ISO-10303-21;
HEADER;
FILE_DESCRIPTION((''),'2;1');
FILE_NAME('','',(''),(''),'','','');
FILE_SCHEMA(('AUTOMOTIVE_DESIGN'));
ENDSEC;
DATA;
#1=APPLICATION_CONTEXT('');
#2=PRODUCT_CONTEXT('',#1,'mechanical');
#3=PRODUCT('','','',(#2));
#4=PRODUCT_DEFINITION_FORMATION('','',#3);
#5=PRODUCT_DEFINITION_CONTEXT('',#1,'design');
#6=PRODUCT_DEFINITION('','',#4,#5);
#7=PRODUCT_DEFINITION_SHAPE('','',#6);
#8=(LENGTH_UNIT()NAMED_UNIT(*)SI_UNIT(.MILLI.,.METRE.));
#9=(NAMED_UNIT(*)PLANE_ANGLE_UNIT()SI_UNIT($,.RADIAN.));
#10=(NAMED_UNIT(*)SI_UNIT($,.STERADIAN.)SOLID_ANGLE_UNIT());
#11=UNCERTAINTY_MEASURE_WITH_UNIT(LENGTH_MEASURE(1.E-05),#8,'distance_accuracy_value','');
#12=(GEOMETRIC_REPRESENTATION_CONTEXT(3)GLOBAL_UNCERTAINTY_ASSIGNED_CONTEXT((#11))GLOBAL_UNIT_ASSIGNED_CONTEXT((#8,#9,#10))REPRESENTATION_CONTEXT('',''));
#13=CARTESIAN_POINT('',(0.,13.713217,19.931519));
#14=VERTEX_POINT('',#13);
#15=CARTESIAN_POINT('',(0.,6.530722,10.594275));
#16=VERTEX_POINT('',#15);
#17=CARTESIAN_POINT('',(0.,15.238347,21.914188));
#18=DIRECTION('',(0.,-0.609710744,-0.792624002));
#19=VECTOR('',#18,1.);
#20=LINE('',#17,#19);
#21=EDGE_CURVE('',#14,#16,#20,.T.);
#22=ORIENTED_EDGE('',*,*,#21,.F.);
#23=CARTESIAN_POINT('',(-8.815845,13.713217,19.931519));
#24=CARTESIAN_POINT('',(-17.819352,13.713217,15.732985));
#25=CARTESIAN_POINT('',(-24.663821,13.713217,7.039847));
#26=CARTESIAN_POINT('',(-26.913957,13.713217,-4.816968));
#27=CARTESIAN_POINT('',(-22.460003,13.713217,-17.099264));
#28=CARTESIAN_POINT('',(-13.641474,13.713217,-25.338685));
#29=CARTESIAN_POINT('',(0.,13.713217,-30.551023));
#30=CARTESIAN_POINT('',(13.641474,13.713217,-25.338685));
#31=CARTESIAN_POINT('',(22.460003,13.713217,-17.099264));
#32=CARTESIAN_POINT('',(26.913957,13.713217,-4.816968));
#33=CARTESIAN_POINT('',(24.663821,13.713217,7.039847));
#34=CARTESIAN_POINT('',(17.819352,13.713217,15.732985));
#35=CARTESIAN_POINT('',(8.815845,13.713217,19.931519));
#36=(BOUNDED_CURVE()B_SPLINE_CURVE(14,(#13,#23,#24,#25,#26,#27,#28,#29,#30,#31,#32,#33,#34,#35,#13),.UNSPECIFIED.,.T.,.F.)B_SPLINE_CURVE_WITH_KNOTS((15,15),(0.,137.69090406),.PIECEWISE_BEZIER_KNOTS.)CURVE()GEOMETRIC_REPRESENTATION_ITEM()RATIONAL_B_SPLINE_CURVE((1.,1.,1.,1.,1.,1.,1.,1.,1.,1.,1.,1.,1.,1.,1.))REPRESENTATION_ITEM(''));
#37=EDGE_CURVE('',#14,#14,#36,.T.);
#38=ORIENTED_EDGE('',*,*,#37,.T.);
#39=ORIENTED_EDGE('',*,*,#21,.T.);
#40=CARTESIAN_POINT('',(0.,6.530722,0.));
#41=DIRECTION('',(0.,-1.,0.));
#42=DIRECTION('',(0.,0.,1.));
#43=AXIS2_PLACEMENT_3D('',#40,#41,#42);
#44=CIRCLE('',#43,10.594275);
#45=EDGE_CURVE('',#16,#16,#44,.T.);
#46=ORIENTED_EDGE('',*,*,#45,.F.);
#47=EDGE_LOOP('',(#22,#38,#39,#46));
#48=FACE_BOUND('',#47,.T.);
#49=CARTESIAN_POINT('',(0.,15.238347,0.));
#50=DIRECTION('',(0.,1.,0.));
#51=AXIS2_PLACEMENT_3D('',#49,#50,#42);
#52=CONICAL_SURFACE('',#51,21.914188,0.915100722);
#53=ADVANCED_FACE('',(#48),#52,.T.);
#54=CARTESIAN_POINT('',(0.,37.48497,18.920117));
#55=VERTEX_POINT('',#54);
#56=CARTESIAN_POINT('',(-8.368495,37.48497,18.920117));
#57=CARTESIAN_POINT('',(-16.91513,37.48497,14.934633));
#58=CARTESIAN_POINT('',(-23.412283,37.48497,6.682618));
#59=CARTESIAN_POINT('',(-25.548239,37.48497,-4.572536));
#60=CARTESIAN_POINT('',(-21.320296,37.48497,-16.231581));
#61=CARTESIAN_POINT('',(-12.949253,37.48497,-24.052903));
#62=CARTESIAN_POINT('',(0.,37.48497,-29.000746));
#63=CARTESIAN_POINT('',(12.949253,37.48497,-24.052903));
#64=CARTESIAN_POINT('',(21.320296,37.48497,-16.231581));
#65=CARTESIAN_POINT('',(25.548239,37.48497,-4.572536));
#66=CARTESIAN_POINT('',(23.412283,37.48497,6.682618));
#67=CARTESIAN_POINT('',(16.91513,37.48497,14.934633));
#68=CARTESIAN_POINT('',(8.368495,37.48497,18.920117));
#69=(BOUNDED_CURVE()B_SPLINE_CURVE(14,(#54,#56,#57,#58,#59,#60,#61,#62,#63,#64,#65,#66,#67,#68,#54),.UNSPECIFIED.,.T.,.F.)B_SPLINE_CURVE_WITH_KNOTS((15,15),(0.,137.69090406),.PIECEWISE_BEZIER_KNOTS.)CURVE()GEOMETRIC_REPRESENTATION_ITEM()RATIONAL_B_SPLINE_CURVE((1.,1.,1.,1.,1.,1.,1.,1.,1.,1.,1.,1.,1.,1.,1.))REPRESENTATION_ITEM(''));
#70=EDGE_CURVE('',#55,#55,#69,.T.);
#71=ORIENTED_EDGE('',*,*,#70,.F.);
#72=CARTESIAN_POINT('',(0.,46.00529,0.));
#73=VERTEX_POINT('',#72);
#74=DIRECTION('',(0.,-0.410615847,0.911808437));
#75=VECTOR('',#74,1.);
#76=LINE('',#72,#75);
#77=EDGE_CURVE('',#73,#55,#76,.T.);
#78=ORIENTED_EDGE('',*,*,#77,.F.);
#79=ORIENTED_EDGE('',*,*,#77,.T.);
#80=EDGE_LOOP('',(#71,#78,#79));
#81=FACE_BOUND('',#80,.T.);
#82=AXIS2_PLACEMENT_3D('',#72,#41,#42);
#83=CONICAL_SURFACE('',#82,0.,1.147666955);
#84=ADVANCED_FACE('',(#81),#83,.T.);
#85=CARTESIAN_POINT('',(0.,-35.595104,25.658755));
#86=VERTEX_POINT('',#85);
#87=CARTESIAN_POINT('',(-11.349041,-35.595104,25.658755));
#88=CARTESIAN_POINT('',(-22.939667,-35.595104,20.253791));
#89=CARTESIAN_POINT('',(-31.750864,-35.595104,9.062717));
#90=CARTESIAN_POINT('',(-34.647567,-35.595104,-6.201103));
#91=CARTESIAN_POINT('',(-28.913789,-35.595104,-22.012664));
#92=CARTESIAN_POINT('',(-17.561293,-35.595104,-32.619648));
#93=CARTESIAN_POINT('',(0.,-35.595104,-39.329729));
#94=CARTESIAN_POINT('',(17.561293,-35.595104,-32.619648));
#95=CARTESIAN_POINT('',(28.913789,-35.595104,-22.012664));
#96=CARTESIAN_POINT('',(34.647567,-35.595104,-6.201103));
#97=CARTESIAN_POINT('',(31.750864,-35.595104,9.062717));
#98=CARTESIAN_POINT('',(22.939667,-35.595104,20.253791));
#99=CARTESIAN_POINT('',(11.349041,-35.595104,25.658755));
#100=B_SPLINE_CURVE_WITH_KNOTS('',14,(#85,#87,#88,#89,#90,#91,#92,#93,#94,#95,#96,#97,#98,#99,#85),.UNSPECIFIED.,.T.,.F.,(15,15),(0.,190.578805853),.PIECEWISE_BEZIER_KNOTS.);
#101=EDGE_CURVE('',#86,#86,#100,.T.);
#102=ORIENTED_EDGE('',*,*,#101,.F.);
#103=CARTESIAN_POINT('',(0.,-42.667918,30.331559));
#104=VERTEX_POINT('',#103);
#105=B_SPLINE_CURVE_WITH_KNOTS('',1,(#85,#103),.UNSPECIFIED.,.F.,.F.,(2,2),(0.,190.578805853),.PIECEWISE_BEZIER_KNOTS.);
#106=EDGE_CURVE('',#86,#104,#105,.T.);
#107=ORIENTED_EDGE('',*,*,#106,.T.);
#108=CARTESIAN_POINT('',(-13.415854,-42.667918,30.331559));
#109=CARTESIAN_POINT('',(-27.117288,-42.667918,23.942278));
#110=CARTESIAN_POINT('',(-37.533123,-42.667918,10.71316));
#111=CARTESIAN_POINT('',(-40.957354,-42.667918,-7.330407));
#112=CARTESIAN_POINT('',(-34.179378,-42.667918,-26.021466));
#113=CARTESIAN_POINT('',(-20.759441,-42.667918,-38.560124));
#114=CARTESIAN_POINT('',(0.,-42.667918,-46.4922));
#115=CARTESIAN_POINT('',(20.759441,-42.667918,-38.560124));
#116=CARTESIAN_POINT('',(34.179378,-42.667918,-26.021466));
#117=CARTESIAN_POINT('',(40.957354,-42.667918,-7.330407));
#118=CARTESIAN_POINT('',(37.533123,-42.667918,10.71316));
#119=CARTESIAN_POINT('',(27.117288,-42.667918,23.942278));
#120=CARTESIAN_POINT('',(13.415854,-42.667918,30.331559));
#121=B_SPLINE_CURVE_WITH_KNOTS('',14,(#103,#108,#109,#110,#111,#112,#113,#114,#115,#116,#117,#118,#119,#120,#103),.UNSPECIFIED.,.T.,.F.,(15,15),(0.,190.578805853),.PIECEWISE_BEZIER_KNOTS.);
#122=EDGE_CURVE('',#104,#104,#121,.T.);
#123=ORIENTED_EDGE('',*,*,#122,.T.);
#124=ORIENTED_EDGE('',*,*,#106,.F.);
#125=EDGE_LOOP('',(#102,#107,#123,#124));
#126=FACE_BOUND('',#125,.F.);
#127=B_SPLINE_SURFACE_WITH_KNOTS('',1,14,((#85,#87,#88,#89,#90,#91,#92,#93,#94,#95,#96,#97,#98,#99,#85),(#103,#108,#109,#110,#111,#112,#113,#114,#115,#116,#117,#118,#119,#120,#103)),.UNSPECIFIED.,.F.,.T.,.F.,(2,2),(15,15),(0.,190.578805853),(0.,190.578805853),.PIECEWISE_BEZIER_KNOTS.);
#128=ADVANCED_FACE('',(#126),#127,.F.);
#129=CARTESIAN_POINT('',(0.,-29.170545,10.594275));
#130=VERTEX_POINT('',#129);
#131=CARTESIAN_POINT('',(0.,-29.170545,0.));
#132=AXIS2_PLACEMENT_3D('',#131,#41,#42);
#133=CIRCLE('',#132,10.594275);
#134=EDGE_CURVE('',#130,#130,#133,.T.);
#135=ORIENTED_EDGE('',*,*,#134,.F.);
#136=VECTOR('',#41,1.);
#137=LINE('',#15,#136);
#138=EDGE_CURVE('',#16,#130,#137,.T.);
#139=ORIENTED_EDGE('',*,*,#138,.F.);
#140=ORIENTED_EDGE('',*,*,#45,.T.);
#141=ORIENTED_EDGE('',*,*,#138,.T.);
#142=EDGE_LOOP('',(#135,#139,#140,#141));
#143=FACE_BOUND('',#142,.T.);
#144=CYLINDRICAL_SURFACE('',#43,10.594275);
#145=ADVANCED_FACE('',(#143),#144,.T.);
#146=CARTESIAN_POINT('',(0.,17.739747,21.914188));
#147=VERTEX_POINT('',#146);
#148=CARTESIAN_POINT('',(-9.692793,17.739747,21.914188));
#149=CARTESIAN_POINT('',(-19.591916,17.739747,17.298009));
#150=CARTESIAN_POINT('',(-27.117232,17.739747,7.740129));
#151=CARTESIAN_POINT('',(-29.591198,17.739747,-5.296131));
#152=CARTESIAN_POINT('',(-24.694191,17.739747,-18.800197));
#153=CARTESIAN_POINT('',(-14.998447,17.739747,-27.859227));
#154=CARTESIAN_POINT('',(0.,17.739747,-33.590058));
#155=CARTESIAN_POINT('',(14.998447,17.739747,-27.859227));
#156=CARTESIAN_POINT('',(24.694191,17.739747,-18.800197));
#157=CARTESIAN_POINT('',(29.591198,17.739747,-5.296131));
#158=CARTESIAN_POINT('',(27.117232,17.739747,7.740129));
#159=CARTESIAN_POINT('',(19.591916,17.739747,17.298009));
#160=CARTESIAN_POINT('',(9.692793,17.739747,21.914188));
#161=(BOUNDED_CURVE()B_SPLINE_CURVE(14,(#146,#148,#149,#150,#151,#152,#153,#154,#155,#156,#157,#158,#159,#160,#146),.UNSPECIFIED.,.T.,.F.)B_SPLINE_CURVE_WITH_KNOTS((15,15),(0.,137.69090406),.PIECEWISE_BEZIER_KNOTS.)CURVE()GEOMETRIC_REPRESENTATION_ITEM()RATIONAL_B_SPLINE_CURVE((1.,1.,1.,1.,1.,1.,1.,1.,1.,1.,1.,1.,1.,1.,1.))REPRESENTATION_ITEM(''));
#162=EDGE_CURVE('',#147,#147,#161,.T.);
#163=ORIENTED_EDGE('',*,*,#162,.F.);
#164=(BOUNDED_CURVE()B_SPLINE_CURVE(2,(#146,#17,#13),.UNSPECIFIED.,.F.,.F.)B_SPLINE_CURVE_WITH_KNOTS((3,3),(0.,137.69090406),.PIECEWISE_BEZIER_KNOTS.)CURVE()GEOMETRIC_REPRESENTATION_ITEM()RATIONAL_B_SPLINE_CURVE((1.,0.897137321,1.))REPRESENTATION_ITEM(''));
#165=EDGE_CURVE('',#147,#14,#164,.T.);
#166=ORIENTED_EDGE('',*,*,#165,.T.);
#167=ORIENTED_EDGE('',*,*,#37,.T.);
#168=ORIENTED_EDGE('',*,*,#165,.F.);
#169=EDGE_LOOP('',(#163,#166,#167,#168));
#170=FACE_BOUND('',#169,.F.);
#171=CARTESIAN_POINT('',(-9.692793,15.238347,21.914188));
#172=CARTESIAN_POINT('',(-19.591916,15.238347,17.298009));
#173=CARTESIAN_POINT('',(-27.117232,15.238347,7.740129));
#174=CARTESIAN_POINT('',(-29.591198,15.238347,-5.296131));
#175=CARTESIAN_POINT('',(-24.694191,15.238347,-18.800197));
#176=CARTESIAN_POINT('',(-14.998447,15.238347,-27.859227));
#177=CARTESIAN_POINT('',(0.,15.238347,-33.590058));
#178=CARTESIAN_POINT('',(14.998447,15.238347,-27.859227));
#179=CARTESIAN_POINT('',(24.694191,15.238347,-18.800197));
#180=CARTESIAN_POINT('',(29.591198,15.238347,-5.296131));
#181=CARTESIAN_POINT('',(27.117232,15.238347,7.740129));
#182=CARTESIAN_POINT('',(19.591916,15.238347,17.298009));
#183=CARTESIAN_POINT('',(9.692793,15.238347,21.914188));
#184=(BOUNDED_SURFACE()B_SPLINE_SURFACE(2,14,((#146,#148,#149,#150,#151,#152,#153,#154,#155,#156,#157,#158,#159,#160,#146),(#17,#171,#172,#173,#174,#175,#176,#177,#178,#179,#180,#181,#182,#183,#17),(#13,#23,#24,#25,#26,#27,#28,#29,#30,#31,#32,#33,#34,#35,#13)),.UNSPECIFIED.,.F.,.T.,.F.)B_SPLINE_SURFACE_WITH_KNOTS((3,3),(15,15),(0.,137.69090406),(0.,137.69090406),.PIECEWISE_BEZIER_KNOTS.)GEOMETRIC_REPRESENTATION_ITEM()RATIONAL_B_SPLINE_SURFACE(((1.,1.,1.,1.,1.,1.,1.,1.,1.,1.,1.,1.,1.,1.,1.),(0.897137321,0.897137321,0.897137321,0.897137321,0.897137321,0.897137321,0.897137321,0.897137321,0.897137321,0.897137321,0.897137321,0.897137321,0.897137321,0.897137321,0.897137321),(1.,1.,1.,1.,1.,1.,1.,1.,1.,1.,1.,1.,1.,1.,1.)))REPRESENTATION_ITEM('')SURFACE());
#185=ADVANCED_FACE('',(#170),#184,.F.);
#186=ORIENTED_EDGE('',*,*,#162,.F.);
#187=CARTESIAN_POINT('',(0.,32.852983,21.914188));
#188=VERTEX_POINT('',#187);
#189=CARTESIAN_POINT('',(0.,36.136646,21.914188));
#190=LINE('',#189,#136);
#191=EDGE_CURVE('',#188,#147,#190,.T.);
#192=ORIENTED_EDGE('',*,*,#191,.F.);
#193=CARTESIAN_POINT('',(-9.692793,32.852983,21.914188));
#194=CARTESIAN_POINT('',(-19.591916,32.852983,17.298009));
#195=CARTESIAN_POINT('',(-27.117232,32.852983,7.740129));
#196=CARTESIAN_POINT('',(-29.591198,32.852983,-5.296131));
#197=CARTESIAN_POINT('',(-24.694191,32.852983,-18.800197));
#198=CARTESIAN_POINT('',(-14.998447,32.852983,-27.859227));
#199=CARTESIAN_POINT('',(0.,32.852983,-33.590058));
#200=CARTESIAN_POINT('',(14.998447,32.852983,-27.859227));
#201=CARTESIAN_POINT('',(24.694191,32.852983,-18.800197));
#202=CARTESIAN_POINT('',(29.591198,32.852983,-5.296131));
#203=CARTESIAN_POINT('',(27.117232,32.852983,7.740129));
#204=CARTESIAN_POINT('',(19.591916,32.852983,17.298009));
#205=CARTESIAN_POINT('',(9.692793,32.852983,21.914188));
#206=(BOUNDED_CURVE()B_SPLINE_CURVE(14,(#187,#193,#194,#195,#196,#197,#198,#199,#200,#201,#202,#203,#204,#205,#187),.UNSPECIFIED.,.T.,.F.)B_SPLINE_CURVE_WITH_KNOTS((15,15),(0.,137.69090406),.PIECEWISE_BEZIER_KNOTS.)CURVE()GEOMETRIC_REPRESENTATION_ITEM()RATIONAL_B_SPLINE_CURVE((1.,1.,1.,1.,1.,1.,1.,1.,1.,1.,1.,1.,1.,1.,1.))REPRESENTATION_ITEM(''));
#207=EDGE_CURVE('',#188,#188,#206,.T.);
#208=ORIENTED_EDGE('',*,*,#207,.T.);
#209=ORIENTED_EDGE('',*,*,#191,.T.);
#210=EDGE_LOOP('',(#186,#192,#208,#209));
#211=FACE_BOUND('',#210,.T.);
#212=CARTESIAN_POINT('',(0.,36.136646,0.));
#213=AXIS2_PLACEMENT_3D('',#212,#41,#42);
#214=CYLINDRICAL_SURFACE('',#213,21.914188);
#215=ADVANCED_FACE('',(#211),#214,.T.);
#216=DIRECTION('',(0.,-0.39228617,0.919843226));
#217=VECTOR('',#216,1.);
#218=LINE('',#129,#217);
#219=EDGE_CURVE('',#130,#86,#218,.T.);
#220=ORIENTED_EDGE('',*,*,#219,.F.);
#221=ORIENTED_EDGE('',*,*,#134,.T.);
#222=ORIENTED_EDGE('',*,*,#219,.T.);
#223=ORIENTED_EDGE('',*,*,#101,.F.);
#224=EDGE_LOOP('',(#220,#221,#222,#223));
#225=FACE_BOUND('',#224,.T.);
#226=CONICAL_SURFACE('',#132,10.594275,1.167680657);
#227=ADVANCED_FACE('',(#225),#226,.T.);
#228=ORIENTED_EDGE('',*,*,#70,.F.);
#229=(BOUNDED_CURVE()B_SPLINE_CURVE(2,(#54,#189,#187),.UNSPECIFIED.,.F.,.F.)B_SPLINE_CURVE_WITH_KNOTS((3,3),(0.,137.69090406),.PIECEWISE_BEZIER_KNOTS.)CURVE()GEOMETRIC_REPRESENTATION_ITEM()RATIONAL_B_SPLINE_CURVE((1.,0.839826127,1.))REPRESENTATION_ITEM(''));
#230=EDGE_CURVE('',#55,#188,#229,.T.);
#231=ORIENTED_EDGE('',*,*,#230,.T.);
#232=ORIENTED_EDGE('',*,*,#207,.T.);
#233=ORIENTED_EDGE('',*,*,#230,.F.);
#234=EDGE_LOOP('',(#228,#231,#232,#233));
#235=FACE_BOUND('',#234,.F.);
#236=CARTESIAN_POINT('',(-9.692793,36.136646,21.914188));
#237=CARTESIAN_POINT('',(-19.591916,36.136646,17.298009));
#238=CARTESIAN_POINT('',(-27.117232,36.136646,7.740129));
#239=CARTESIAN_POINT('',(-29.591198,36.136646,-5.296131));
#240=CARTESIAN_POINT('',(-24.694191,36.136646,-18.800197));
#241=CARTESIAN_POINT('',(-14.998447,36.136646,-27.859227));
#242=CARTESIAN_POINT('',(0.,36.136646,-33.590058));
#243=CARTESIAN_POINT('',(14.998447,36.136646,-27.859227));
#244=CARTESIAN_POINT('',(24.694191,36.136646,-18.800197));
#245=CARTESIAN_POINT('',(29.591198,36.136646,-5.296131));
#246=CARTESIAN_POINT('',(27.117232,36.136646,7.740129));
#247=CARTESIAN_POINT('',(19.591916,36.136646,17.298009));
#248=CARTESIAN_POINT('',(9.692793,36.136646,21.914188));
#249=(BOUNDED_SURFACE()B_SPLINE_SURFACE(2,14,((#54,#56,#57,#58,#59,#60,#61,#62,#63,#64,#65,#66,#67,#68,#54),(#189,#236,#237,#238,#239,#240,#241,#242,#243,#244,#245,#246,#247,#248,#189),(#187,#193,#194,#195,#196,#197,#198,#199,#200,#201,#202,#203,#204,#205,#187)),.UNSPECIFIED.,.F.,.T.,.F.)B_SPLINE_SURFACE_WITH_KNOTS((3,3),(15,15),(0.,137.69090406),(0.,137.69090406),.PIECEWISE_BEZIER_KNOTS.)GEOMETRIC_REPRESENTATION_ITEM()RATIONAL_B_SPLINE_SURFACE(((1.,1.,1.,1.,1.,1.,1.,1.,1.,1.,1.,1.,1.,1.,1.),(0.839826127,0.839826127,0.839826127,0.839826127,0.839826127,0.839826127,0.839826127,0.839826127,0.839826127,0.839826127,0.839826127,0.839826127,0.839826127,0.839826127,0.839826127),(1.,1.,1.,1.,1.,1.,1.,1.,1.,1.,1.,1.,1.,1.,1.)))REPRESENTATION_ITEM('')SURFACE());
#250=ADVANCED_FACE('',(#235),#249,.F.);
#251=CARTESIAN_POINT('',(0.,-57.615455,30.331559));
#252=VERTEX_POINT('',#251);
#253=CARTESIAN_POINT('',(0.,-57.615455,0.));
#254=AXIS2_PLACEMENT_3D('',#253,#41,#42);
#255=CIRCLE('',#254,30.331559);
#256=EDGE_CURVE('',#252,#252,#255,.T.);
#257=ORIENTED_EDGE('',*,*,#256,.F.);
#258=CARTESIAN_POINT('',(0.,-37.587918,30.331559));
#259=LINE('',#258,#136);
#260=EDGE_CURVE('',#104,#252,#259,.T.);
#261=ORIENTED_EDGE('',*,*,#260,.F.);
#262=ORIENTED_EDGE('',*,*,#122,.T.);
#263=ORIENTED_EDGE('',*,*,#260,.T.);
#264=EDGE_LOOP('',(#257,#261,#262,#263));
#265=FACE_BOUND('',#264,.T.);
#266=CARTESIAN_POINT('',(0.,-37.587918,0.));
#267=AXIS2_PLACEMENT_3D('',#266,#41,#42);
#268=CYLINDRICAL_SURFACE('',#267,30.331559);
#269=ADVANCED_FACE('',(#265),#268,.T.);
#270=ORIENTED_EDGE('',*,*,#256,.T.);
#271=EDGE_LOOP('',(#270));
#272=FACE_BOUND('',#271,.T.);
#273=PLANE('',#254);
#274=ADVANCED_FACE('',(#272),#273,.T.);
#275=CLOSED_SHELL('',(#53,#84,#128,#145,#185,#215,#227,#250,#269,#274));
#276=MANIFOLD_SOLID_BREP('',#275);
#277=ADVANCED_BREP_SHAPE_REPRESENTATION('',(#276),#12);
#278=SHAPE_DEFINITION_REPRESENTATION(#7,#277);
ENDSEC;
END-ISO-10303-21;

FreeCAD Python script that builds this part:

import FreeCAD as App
import Part
import Sketcher
from FreeCAD import Vector
Q = App.Units.Quantity


def edges_at(feature, points):
    """Names of the edges that pass closest to the given points."""
    edges = feature.Shape.Edges
    near = lambda p: min(range(len(edges)), key=lambda i: edges[i].distToShape(Part.Vertex(*p))[0])
    return sorted({f"Edge{near(p) + 1}" for p in points})


def add_polygon(sketch, points):
    """Adds a closed chain of lines whose ends are joined by coincident constraints."""
    first, n = sketch.GeometryCount, len(points)
    for a, b in zip(points, points[1:] + points[:1]):
        sketch.addGeometry(Part.LineSegment(App.Vector(*a, 0), App.Vector(*b, 0)), False)
    for i in range(n):
        sketch.addConstraint(Sketcher.Constraint("Coincident", first + i, 2, first + (i + 1) % n, 1))

doc = App.newDocument("Part")
body = doc.addObject("PartDesign::Body", "Body")

# Sketch on YZ plane
sketch1 = doc.addObject("Sketcher::SketchObject", "Sketch")
body.addObject(sketch1)
sketch1.AttachmentSupport = (doc.YZ_Plane, [""])
sketch1.MapMode = "FlatFace"
add_polygon(sketch1, [(-58, 0), (46, 0), (36, 22), (15, 22), (7, 11), (-29, 11), (-38, 30), (-58, 30)])  # lines 0-7
sketch1.addConstraint(Sketcher.Constraint("Horizontal", 0))
sketch1.addConstraint(Sketcher.Constraint("Horizontal", 2))
sketch1.addConstraint(Sketcher.Constraint("Horizontal", 4))
sketch1.addConstraint(Sketcher.Constraint("Horizontal", 6))
sketch1.addConstraint(Sketcher.Constraint("Vertical", 7))
sketch1.addConstraint(Sketcher.Constraint("PointOnObject", 0, 2, -1))
sketch1.addConstraint(Sketcher.Constraint("DistanceX", 2, 2, 2, 1, Q("20.898299 mm")))
sketch1.addConstraint(Sketcher.Constraint("DistanceY", 7, 2, 7, 1, Q("30.331559 mm")))
sketch1.addConstraint(Sketcher.Constraint("DistanceX", 6, 2, 2, 2, Q("72.853802 mm")))
sketch1.addConstraint(Sketcher.Constraint("DistanceX", 0, 1, 0, 2, Q("103.620745 mm")))
sketch1.addConstraint(Sketcher.Constraint("DistanceX", 4, 2, 4, 1, Q("35.701267 mm")))
sketch1.addConstraint(Sketcher.Constraint("DistanceX", 6, 2, 6, 1, Q("20.027537 mm")))
sketch1.addConstraint(Sketcher.Constraint("DistanceX", -1, 1, 0, 2, Q("46.00529 mm")))
sketch1.addConstraint(Sketcher.Constraint("DistanceX", 3, 2, 0, 2, Q("39.474568 mm")))
sketch1.addConstraint(Sketcher.Constraint("DistanceY", 2, 2, 5, 2, Q("8.417371 mm")))
sketch1.addConstraint(Sketcher.Constraint("Distance", 3, Q("14.281567 mm")))
revolution = doc.addObject("PartDesign::Revolution", "Revolution")
body.addObject(revolution)
revolution.Profile = sketch1
revolution.ReferenceAxis = (sketch1, ["H_Axis"])
revolution.Angle = 360
doc.recompute()

fillet = doc.addObject("PartDesign::Fillet", "Fillet")
body.addObject(fillet)
fillet.Base = (revolution, edges_at(revolution, [(0, 36.137, -21.914), (0, 15.238, -21.914)]))
fillet.Radius = Q("0.2 in")
doc.recompute()

chamfer = doc.addObject("PartDesign::Chamfer", "Chamfer")
body.addObject(chamfer)
chamfer.Base = (fillet, edges_at(fillet, [(0, -37.588, -30.332)]))
chamfer.Size = Q("0.2 in")

doc.recompute()
